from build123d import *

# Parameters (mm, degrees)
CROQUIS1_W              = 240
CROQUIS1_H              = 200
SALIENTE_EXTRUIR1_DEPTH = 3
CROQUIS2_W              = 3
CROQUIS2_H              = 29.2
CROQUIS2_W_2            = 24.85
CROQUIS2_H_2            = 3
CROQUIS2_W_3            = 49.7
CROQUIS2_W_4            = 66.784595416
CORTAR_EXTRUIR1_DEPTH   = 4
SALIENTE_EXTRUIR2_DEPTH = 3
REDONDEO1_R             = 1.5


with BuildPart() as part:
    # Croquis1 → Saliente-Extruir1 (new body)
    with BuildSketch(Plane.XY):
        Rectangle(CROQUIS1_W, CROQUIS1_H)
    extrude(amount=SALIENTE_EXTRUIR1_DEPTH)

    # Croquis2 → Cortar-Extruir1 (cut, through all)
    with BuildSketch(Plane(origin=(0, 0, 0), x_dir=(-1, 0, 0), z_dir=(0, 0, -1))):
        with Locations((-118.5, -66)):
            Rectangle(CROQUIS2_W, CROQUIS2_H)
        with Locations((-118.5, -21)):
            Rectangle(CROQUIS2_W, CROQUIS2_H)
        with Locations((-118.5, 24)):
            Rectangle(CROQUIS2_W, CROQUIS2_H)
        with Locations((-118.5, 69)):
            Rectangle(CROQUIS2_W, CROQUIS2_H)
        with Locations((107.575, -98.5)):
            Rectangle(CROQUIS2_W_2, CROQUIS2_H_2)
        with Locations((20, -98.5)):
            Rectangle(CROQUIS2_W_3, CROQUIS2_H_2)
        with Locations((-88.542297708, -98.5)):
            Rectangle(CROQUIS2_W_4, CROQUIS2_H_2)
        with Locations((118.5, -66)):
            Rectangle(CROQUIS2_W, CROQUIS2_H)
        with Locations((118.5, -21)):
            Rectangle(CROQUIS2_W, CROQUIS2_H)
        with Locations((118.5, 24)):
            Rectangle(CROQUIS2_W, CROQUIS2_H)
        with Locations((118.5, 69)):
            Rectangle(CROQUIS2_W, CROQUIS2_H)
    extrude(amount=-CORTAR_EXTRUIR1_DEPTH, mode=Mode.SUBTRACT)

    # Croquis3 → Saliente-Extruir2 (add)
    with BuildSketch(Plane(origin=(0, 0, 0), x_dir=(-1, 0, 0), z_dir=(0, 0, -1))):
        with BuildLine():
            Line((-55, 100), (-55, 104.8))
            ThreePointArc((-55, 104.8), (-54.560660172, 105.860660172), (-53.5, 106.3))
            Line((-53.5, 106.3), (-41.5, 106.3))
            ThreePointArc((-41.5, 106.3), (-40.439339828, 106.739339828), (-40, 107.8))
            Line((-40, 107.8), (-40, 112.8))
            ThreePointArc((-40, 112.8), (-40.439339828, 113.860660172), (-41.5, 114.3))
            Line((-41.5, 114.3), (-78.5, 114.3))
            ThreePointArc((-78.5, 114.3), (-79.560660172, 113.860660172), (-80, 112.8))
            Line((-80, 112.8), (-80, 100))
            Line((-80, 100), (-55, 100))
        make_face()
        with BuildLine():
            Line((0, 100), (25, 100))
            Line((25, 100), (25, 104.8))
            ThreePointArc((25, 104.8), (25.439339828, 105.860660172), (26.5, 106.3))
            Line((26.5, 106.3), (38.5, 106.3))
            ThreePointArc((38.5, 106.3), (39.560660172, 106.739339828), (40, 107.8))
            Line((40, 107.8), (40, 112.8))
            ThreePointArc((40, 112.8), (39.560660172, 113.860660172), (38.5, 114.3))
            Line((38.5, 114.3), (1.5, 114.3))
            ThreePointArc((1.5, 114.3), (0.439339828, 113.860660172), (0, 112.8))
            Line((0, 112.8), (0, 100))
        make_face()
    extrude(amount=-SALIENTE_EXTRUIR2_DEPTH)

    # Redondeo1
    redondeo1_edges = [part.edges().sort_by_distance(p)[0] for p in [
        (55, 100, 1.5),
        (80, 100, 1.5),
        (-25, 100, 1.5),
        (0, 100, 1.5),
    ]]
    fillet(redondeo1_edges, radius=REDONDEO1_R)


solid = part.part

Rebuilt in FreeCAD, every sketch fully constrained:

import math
import FreeCAD as App
import Part
import Sketcher


def edges_at(feature, points):
    """Names of the edges that pass closest to the given points."""
    edges = feature.Shape.Edges
    near = lambda p: min(range(len(edges)), key=lambda i: edges[i].distToShape(Part.Vertex(*p))[0])
    return sorted({f"Edge{near(p) + 1}" for p in points})

doc = App.newDocument("Part")
body = doc.addObject("PartDesign::Body", "Body")

sketch1 = body.newObject("Sketcher::SketchObject", "Sketch")
sketch1.AttachmentSupport = (doc.getObject("XY_Plane"), [""])
sketch1.MapMode = "FlatFace"
sketch1.addGeometry([
    Part.LineSegment(App.Vector(-120, 100, 0), App.Vector(-120, -100, 0)),
    Part.LineSegment(App.Vector(-120, -100, 0), App.Vector(120, -100, 0)),
    Part.LineSegment(App.Vector(120, -100, 0), App.Vector(120, 100, 0)),
    Part.LineSegment(App.Vector(120, 100, 0), App.Vector(-120, 100, 0)),
], False)
sketch1.addConstraint([
    Sketcher.Constraint("Coincident", 0, 2, 1, 1),
    Sketcher.Constraint("Coincident", 1, 2, 2, 1),
    Sketcher.Constraint("Coincident", 2, 2, 3, 1),
    Sketcher.Constraint("Coincident", 3, 2, 0, 1),
    Sketcher.Constraint("Vertical", 0),
    Sketcher.Constraint("Horizontal", 1),
    Sketcher.Constraint("Vertical", 2),
    Sketcher.Constraint("Horizontal", 3),
    Sketcher.Constraint("Symmetric", 0, 2, 2, 2, -1, 1),
    Sketcher.Constraint("DistanceX", 1, 1, 1, 2, 240.0),
    Sketcher.Constraint("DistanceY", 0, 2, 0, 1, 200.0),
])
pad1 = body.newObject("PartDesign::Pad", "Pad")
pad1.Profile = sketch1
pad1.Length = 3

sketch2 = body.newObject("Sketcher::SketchObject", "Sketch001")
sketch2.AttachmentSupport = (doc.getObject("XY_Plane"), [""])
sketch2.MapMode = "FlatFace"
sketch2.addGeometry([
    Part.LineSegment(App.Vector(120, -51.4, 0), App.Vector(120, -80.6, 0)),
    Part.LineSegment(App.Vector(120, -80.6, 0), App.Vector(117, -80.6, 0)),
    Part.LineSegment(App.Vector(117, -80.6, 0), App.Vector(117, -51.4, 0)),
    Part.LineSegment(App.Vector(117, -51.4, 0), App.Vector(120, -51.4, 0)),
    Part.LineSegment(App.Vector(120, -6.4, 0), App.Vector(120, -35.6, 0)),
    Part.LineSegment(App.Vector(120, -35.6, 0), App.Vector(117, -35.6, 0)),
    Part.LineSegment(App.Vector(117, -35.6, 0), App.Vector(117, -6.4, 0)),
    Part.LineSegment(App.Vector(117, -6.4, 0), App.Vector(120, -6.4, 0)),
    Part.LineSegment(App.Vector(120, 38.6, 0), App.Vector(120, 9.4, 0)),
    Part.LineSegment(App.Vector(120, 9.4, 0), App.Vector(117, 9.4, 0)),
    Part.LineSegment(App.Vector(117, 9.4, 0), App.Vector(117, 38.6, 0)),
    Part.LineSegment(App.Vector(117, 38.6, 0), App.Vector(120, 38.6, 0)),
    Part.LineSegment(App.Vector(120, 83.6, 0), App.Vector(120, 54.4, 0)),
    Part.LineSegment(App.Vector(120, 54.4, 0), App.Vector(117, 54.4, 0)),
    Part.LineSegment(App.Vector(117, 54.4, 0), App.Vector(117, 83.6, 0)),
    Part.LineSegment(App.Vector(117, 83.6, 0), App.Vector(120, 83.6, 0)),
    Part.LineSegment(App.Vector(-95.15, -97, 0), App.Vector(-95.15, -100, 0)),
    Part.LineSegment(App.Vector(-95.15, -100, 0), App.Vector(-120, -100, 0)),
    Part.LineSegment(App.Vector(-120, -100, 0), App.Vector(-120, -97, 0)),
    Part.LineSegment(App.Vector(-120, -97, 0), App.Vector(-95.15, -97, 0)),
    Part.LineSegment(App.Vector(4.85, -97, 0), App.Vector(4.85, -100, 0)),
    Part.LineSegment(App.Vector(4.85, -100, 0), App.Vector(-44.85, -100, 0)),
    Part.LineSegment(App.Vector(-44.85, -100, 0), App.Vector(-44.85, -97, 0)),
    Part.LineSegment(App.Vector(-44.85, -97, 0), App.Vector(4.85, -97, 0)),
    Part.LineSegment(App.Vector(121.934595, -97, 0), App.Vector(121.934595, -100, 0)),
    Part.LineSegment(App.Vector(121.934595, -100, 0), App.Vector(55.15, -100, 0)),
    Part.LineSegment(App.Vector(55.15, -100, 0), App.Vector(55.15, -97, 0)),
    Part.LineSegment(App.Vector(55.15, -97, 0), App.Vector(121.934595, -97, 0)),
    Part.LineSegment(App.Vector(-117, -51.4, 0), App.Vector(-117, -80.6, 0)),
    Part.LineSegment(App.Vector(-117, -80.6, 0), App.Vector(-120, -80.6, 0)),
    Part.LineSegment(App.Vector(-120, -80.6, 0), App.Vector(-120, -51.4, 0)),
    Part.LineSegment(App.Vector(-120, -51.4, 0), App.Vector(-117, -51.4, 0)),
    Part.LineSegment(App.Vector(-117, -6.4, 0), App.Vector(-117, -35.6, 0)),
    Part.LineSegment(App.Vector(-117, -35.6, 0), App.Vector(-120, -35.6, 0)),
    Part.LineSegment(App.Vector(-120, -35.6, 0), App.Vector(-120, -6.4, 0)),
    Part.LineSegment(App.Vector(-120, -6.4, 0), App.Vector(-117, -6.4, 0)),
    Part.LineSegment(App.Vector(-117, 38.6, 0), App.Vector(-117, 9.4, 0)),
    Part.LineSegment(App.Vector(-117, 9.4, 0), App.Vector(-120, 9.4, 0)),
    Part.LineSegment(App.Vector(-120, 9.4, 0), App.Vector(-120, 38.6, 0)),
    Part.LineSegment(App.Vector(-120, 38.6, 0), App.Vector(-117, 38.6, 0)),
    Part.LineSegment(App.Vector(-117, 83.6, 0), App.Vector(-117, 54.4, 0)),
    Part.LineSegment(App.Vector(-117, 54.4, 0), App.Vector(-120, 54.4, 0)),
    Part.LineSegment(App.Vector(-120, 54.4, 0), App.Vector(-120, 83.6, 0)),
    Part.LineSegment(App.Vector(-120, 83.6, 0), App.Vector(-117, 83.6, 0)),
], False)
sketch2.addConstraint([
    Sketcher.Constraint("Coincident", 0, 2, 1, 1),
    Sketcher.Constraint("Coincident", 1, 2, 2, 1),
    Sketcher.Constraint("Coincident", 2, 2, 3, 1),
    Sketcher.Constraint("Coincident", 3, 2, 0, 1),
    Sketcher.Constraint("Coincident", 4, 2, 5, 1),
    Sketcher.Constraint("Coincident", 5, 2, 6, 1),
    Sketcher.Constraint("Coincident", 6, 2, 7, 1),
    Sketcher.Constraint("Coincident", 7, 2, 4, 1),
    Sketcher.Constraint("Coincident", 8, 2, 9, 1),
    Sketcher.Constraint("Coincident", 9, 2, 10, 1),
    Sketcher.Constraint("Coincident", 10, 2, 11, 1),
    Sketcher.Constraint("Coincident", 11, 2, 8, 1),
    Sketcher.Constraint("Coincident", 12, 2, 13, 1),
    Sketcher.Constraint("Coincident", 13, 2, 14, 1),
    Sketcher.Constraint("Coincident", 14, 2, 15, 1),
    Sketcher.Constraint("Coincident", 15, 2, 12, 1),
    Sketcher.Constraint("Coincident", 16, 2, 17, 1),
    Sketcher.Constraint("Coincident", 17, 2, 18, 1),
    Sketcher.Constraint("Coincident", 18, 2, 19, 1),
    Sketcher.Constraint("Coincident", 19, 2, 16, 1),
    Sketcher.Constraint("Coincident", 20, 2, 21, 1),
    Sketcher.Constraint("Coincident", 21, 2, 22, 1),
    Sketcher.Constraint("Coincident", 22, 2, 23, 1),
    Sketcher.Constraint("Coincident", 23, 2, 20, 1),
    Sketcher.Constraint("Coincident", 24, 2, 25, 1),
    Sketcher.Constraint("Coincident", 25, 2, 26, 1),
    Sketcher.Constraint("Coincident", 26, 2, 27, 1),
    Sketcher.Constraint("Coincident", 27, 2, 24, 1),
    Sketcher.Constraint("Coincident", 28, 2, 29, 1),
    Sketcher.Constraint("Coincident", 29, 2, 30, 1),
    Sketcher.Constraint("Coincident", 30, 2, 31, 1),
    Sketcher.Constraint("Coincident", 31, 2, 28, 1),
    Sketcher.Constraint("Coincident", 32, 2, 33, 1),
    Sketcher.Constraint("Coincident", 33, 2, 34, 1),
    Sketcher.Constraint("Coincident", 34, 2, 35, 1),
    Sketcher.Constraint("Coincident", 35, 2, 32, 1),
    Sketcher.Constraint("Coincident", 36, 2, 37, 1),
    Sketcher.Constraint("Coincident", 37, 2, 38, 1),
    Sketcher.Constraint("Coincident", 38, 2, 39, 1),
    Sketcher.Constraint("Coincident", 39, 2, 36, 1),
    Sketcher.Constraint("Coincident", 40, 2, 41, 1),
    Sketcher.Constraint("Coincident", 41, 2, 42, 1),
    Sketcher.Constraint("Coincident", 42, 2, 43, 1),
    Sketcher.Constraint("Coincident", 43, 2, 40, 1),
    Sketcher.Constraint("Vertical", 0),
    Sketcher.Constraint("Horizontal", 1),
    Sketcher.Constraint("Vertical", 2),
    Sketcher.Constraint("Horizontal", 3),
    Sketcher.Constraint("Vertical", 4),
    Sketcher.Constraint("Horizontal", 5),
    Sketcher.Constraint("Vertical", 6),
    Sketcher.Constraint("Horizontal", 7),
    Sketcher.Constraint("Vertical", 8),
    Sketcher.Constraint("Horizontal", 9),
    Sketcher.Constraint("Vertical", 10),
    Sketcher.Constraint("Horizontal", 11),
    Sketcher.Constraint("Vertical", 12),
    Sketcher.Constraint("Horizontal", 13),
    Sketcher.Constraint("Vertical", 14),
    Sketcher.Constraint("Horizontal", 15),
    Sketcher.Constraint("Vertical", 16),
    Sketcher.Constraint("Horizontal", 17),
    Sketcher.Constraint("Vertical", 18),
    Sketcher.Constraint("Horizontal", 19),
    Sketcher.Constraint("Vertical", 20),
    Sketcher.Constraint("Horizontal", 21),
    Sketcher.Constraint("Vertical", 22),
    Sketcher.Constraint("Horizontal", 23),
    Sketcher.Constraint("Vertical", 24),
    Sketcher.Constraint("Horizontal", 25),
    Sketcher.Constraint("Vertical", 26),
    Sketcher.Constraint("Horizontal", 27),
    Sketcher.Constraint("Vertical", 28),
    Sketcher.Constraint("Horizontal", 29),
    Sketcher.Constraint("Vertical", 30),
    Sketcher.Constraint("Horizontal", 31),
    Sketcher.Constraint("Vertical", 32),
    Sketcher.Constraint("Horizontal", 33),
    Sketcher.Constraint("Vertical", 34),
    Sketcher.Constraint("Horizontal", 35),
    Sketcher.Constraint("Vertical", 36),
    Sketcher.Constraint("Horizontal", 37),
    Sketcher.Constraint("Vertical", 38),
    Sketcher.Constraint("Horizontal", 39),
    Sketcher.Constraint("Vertical", 40),
    Sketcher.Constraint("Horizontal", 41),
    Sketcher.Constraint("Vertical", 42),
    Sketcher.Constraint("Horizontal", 43),
    Sketcher.Constraint("Symmetric", 1, 2, 28, 2, -2),
    Sketcher.Constraint("Symmetric", 3, 2, 30, 2, -2),
    Sketcher.Constraint("Symmetric", 5, 2, 32, 2, -2),
    Sketcher.Constraint("Symmetric", 7, 2, 34, 2, -2),
    Sketcher.Constraint("Symmetric", 9, 2, 36, 2, -2),
    Sketcher.Constraint("Symmetric", 11, 2, 38, 2, -2),
    Sketcher.Constraint("Symmetric", 13, 2, 40, 2, -2),
    Sketcher.Constraint("Symmetric", 15, 2, 42, 2, -2),
    Sketcher.Constraint("Horizontal", 17, 2, 20, 2),
    Sketcher.Constraint("Horizontal", 19, 2, 22, 2),
    Sketcher.Constraint("Horizontal", 21, 2, 24, 2),
    Sketcher.Constraint("Horizontal", 23, 2, 26, 2),
    Sketcher.Constraint("Vertical", 3, 2, 4, 2),
    Sketcher.Constraint("Vertical", 2, 2, 5, 2),
    Sketcher.Constraint("Vertical", 7, 2, 8, 2),
    Sketcher.Constraint("Vertical", 6, 2, 9, 2),
    Sketcher.Constraint("Vertical", 11, 2, 12, 2),
    Sketcher.Constraint("Vertical", 10, 2, 13, 2),
    Sketcher.Constraint("Vertical", 18, 2, 29, 2),
    Sketcher.Constraint("Equal", 2, 4),
    Sketcher.Constraint("Equal", 6, 8),
    Sketcher.Constraint("Equal", 10, 12),
    Sketcher.Constraint("Equal", 43, 16),
    Sketcher.Constraint("DistanceX", 1, 2, 1, 1, 3.0),
    Sketcher.Constraint("DistanceX", 21, 2, 21, 1, 49.7),
    Sketcher.Constraint("DistanceY", 0, 2, 0, 1, 29.2),
    Sketcher.Constraint("DistanceX", -1, 1, 0, 2, 120.0),
    Sketcher.Constraint("DistanceY", 16, 2, -1, 1, 100.0),
    Sketcher.Constraint("DistanceY", 0, 2, 4, 2, 45.0),
    Sketcher.Constraint("DistanceY", 4, 2, 8, 2, 45.0),
    Sketcher.Constraint("DistanceY", 8, 2, 12, 2, 45.0),
    Sketcher.Constraint("DistanceX", 16, 2, 20, 2, 100.0),
    Sketcher.Constraint("DistanceX", 17, 2, 17, 1, 24.85),
    Sketcher.Constraint("DistanceY", 0, 2, -1, 1, 80.6),
    Sketcher.Constraint("DistanceX", 20, 2, 25, 2, 50.3),
    Sketcher.Constraint("DistanceX", 25, 2, 25, 1, 66.784595),
])
pocket1 = body.newObject("PartDesign::Pocket", "Pocket")
pocket1.Profile = sketch2
pocket1.Type = "ThroughAll"
pocket1.Reversed = True

sketch3 = body.newObject("Sketcher::SketchObject", "Sketch002")
sketch3.AttachmentSupport = (doc.getObject("XY_Plane"), [""])
sketch3.MapMode = "FlatFace"
sketch3.addGeometry([
    Part.LineSegment(App.Vector(55, 100, 0), App.Vector(55, 104.8, 0)),
    Part.ArcOfCircle(Part.Circle(App.Vector(53.5, 104.8, 0), App.Vector(0, 0, 1), 1.5), math.radians(0), math.radians(90)),
    Part.LineSegment(App.Vector(53.5, 106.3, 0), App.Vector(41.5, 106.3, 0)),
    Part.ArcOfCircle(Part.Circle(App.Vector(41.5, 107.8, 0), App.Vector(0, 0, 1), 1.5), math.radians(180), math.radians(270)),
    Part.LineSegment(App.Vector(40, 107.8, 0), App.Vector(40, 112.8, 0)),
    Part.ArcOfCircle(Part.Circle(App.Vector(41.5, 112.8, 0), App.Vector(0, 0, 1), 1.5), math.radians(90), math.radians(180)),
    Part.LineSegment(App.Vector(41.5, 114.3, 0), App.Vector(78.5, 114.3, 0)),
    Part.ArcOfCircle(Part.Circle(App.Vector(78.5, 112.8, 0), App.Vector(0, 0, 1), 1.5), math.radians(0), math.radians(90)),
    Part.LineSegment(App.Vector(80, 112.8, 0), App.Vector(80, 100, 0)),
    Part.LineSegment(App.Vector(80, 100, 0), App.Vector(55, 100, 0)),
    Part.LineSegment(App.Vector(0, 100, 0), App.Vector(-25, 100, 0)),
    Part.LineSegment(App.Vector(-25, 100, 0), App.Vector(-25, 104.8, 0)),
    Part.ArcOfCircle(Part.Circle(App.Vector(-26.5, 104.8, 0), App.Vector(0, 0, 1), 1.5), math.radians(0), math.radians(90)),
    Part.LineSegment(App.Vector(-26.5, 106.3, 0), App.Vector(-38.5, 106.3, 0)),
    Part.ArcOfCircle(Part.Circle(App.Vector(-38.5, 107.8, 0), App.Vector(0, 0, 1), 1.5), math.radians(180), math.radians(270)),
    Part.LineSegment(App.Vector(-40, 107.8, 0), App.Vector(-40, 112.8, 0)),
    Part.ArcOfCircle(Part.Circle(App.Vector(-38.5, 112.8, 0), App.Vector(0, 0, 1), 1.5), math.radians(90), math.radians(180)),
    Part.LineSegment(App.Vector(-38.5, 114.3, 0), App.Vector(-1.5, 114.3, 0)),
    Part.ArcOfCircle(Part.Circle(App.Vector(-1.5, 112.8, 0), App.Vector(0, 0, 1), 1.5), math.radians(0), math.radians(90)),
    Part.LineSegment(App.Vector(0, 112.8, 0), App.Vector(0, 100, 0)),
], False)
sketch3.addConstraint([
    Sketcher.Constraint("Tangent", 0, 2, 1, 1),
    Sketcher.Constraint("Tangent", 1, 2, 2, 1),
    Sketcher.Constraint("Tangent", 2, 2, 3, 2),
    Sketcher.Constraint("Tangent", 3, 1, 4, 1),
    Sketcher.Constraint("Tangent", 4, 2, 5, 2),
    Sketcher.Constraint("Tangent", 5, 1, 6, 1),
    Sketcher.Constraint("Tangent", 6, 2, 7, 2),
    Sketcher.Constraint("Tangent", 7, 1, 8, 1),
    Sketcher.Constraint("Coincident", 8, 2, 9, 1),
    Sketcher.Constraint("Coincident", 9, 2, 0, 1),
    Sketcher.Constraint("Coincident", 10, 2, 11, 1),
    Sketcher.Constraint("Tangent", 11, 2, 12, 1),
    Sketcher.Constraint("Tangent", 12, 2, 13, 1),
    Sketcher.Constraint("Tangent", 13, 2, 14, 2),
    Sketcher.Constraint("Tangent", 14, 1, 15, 1),
    Sketcher.Constraint("Tangent", 15, 2, 16, 2),
    Sketcher.Constraint("Tangent", 16, 1, 17, 1),
    Sketcher.Constraint("Tangent", 17, 2, 18, 2),
    Sketcher.Constraint("Tangent", 18, 1, 19, 1),
    Sketcher.Constraint("Coincident", 19, 2, 10, 1),
    Sketcher.Constraint("Vertical", 0),
    Sketcher.Constraint("Horizontal", 2),
    Sketcher.Constraint("Vertical", 4),
    Sketcher.Constraint("Horizontal", 6),
    Sketcher.Constraint("Vertical", 8),
    Sketcher.Constraint("Horizontal", 9),
    Sketcher.Constraint("Horizontal", 10),
    Sketcher.Constraint("Vertical", 11),
    Sketcher.Constraint("Horizontal", 13),
    Sketcher.Constraint("Vertical", 15),
    Sketcher.Constraint("Horizontal", 17),
    Sketcher.Constraint("Vertical", 19),
    Sketcher.Constraint("Equal", 1, 3),
    Sketcher.Constraint("Equal", 3, 5),
    Sketcher.Constraint("Equal", 5, 7),
    Sketcher.Constraint("Equal", 7, 12),
    Sketcher.Constraint("Equal", 12, 14),
    Sketcher.Constraint("Equal", 14, 16),
    Sketcher.Constraint("Equal", 16, 18),
    Sketcher.Constraint("Symmetric", 3, 1, 14, 1, -2),
    Sketcher.Constraint("PointOnObject", 18, 1, -2),
    Sketcher.Constraint("Horizontal", 7, 3, 16, 3),
    Sketcher.Constraint("Horizontal", 9, 2, 10, 2),
    Sketcher.Constraint("Equal", 9, 10),
    Sketcher.Constraint("Equal", 2, 13),
    Sketcher.Constraint("Radius", 1, 1.5),
    Sketcher.Constraint("DistanceX", 2, 2, 2, 1, 12.0),
    Sketcher.Constraint("DistanceX", 6, 1, 6, 2, 37.0),
    Sketcher.Constraint("DistanceY", 4, 1, 4, 2, 5.0),
    Sketcher.Constraint("DistanceY", 0, 1, 0, 2, 4.8),
    Sketcher.Constraint("DistanceY", -1, 1, 8, 2, 100.0),
])
pad2 = body.newObject("PartDesign::Pad", "Pad001")
pad2.Profile = sketch3
pad2.Length = 3
doc.recompute()

fillet = body.newObject("PartDesign::Fillet", "Fillet")
fillet.Base = (pad2, edges_at(pad2, [
    (55, 100, 1.5),
    (80, 100, 1.5),
    (-25, 100, 1.5),
    (0, 100, 1.5),
]))
fillet.Radius = 1.5

doc.recompute()
